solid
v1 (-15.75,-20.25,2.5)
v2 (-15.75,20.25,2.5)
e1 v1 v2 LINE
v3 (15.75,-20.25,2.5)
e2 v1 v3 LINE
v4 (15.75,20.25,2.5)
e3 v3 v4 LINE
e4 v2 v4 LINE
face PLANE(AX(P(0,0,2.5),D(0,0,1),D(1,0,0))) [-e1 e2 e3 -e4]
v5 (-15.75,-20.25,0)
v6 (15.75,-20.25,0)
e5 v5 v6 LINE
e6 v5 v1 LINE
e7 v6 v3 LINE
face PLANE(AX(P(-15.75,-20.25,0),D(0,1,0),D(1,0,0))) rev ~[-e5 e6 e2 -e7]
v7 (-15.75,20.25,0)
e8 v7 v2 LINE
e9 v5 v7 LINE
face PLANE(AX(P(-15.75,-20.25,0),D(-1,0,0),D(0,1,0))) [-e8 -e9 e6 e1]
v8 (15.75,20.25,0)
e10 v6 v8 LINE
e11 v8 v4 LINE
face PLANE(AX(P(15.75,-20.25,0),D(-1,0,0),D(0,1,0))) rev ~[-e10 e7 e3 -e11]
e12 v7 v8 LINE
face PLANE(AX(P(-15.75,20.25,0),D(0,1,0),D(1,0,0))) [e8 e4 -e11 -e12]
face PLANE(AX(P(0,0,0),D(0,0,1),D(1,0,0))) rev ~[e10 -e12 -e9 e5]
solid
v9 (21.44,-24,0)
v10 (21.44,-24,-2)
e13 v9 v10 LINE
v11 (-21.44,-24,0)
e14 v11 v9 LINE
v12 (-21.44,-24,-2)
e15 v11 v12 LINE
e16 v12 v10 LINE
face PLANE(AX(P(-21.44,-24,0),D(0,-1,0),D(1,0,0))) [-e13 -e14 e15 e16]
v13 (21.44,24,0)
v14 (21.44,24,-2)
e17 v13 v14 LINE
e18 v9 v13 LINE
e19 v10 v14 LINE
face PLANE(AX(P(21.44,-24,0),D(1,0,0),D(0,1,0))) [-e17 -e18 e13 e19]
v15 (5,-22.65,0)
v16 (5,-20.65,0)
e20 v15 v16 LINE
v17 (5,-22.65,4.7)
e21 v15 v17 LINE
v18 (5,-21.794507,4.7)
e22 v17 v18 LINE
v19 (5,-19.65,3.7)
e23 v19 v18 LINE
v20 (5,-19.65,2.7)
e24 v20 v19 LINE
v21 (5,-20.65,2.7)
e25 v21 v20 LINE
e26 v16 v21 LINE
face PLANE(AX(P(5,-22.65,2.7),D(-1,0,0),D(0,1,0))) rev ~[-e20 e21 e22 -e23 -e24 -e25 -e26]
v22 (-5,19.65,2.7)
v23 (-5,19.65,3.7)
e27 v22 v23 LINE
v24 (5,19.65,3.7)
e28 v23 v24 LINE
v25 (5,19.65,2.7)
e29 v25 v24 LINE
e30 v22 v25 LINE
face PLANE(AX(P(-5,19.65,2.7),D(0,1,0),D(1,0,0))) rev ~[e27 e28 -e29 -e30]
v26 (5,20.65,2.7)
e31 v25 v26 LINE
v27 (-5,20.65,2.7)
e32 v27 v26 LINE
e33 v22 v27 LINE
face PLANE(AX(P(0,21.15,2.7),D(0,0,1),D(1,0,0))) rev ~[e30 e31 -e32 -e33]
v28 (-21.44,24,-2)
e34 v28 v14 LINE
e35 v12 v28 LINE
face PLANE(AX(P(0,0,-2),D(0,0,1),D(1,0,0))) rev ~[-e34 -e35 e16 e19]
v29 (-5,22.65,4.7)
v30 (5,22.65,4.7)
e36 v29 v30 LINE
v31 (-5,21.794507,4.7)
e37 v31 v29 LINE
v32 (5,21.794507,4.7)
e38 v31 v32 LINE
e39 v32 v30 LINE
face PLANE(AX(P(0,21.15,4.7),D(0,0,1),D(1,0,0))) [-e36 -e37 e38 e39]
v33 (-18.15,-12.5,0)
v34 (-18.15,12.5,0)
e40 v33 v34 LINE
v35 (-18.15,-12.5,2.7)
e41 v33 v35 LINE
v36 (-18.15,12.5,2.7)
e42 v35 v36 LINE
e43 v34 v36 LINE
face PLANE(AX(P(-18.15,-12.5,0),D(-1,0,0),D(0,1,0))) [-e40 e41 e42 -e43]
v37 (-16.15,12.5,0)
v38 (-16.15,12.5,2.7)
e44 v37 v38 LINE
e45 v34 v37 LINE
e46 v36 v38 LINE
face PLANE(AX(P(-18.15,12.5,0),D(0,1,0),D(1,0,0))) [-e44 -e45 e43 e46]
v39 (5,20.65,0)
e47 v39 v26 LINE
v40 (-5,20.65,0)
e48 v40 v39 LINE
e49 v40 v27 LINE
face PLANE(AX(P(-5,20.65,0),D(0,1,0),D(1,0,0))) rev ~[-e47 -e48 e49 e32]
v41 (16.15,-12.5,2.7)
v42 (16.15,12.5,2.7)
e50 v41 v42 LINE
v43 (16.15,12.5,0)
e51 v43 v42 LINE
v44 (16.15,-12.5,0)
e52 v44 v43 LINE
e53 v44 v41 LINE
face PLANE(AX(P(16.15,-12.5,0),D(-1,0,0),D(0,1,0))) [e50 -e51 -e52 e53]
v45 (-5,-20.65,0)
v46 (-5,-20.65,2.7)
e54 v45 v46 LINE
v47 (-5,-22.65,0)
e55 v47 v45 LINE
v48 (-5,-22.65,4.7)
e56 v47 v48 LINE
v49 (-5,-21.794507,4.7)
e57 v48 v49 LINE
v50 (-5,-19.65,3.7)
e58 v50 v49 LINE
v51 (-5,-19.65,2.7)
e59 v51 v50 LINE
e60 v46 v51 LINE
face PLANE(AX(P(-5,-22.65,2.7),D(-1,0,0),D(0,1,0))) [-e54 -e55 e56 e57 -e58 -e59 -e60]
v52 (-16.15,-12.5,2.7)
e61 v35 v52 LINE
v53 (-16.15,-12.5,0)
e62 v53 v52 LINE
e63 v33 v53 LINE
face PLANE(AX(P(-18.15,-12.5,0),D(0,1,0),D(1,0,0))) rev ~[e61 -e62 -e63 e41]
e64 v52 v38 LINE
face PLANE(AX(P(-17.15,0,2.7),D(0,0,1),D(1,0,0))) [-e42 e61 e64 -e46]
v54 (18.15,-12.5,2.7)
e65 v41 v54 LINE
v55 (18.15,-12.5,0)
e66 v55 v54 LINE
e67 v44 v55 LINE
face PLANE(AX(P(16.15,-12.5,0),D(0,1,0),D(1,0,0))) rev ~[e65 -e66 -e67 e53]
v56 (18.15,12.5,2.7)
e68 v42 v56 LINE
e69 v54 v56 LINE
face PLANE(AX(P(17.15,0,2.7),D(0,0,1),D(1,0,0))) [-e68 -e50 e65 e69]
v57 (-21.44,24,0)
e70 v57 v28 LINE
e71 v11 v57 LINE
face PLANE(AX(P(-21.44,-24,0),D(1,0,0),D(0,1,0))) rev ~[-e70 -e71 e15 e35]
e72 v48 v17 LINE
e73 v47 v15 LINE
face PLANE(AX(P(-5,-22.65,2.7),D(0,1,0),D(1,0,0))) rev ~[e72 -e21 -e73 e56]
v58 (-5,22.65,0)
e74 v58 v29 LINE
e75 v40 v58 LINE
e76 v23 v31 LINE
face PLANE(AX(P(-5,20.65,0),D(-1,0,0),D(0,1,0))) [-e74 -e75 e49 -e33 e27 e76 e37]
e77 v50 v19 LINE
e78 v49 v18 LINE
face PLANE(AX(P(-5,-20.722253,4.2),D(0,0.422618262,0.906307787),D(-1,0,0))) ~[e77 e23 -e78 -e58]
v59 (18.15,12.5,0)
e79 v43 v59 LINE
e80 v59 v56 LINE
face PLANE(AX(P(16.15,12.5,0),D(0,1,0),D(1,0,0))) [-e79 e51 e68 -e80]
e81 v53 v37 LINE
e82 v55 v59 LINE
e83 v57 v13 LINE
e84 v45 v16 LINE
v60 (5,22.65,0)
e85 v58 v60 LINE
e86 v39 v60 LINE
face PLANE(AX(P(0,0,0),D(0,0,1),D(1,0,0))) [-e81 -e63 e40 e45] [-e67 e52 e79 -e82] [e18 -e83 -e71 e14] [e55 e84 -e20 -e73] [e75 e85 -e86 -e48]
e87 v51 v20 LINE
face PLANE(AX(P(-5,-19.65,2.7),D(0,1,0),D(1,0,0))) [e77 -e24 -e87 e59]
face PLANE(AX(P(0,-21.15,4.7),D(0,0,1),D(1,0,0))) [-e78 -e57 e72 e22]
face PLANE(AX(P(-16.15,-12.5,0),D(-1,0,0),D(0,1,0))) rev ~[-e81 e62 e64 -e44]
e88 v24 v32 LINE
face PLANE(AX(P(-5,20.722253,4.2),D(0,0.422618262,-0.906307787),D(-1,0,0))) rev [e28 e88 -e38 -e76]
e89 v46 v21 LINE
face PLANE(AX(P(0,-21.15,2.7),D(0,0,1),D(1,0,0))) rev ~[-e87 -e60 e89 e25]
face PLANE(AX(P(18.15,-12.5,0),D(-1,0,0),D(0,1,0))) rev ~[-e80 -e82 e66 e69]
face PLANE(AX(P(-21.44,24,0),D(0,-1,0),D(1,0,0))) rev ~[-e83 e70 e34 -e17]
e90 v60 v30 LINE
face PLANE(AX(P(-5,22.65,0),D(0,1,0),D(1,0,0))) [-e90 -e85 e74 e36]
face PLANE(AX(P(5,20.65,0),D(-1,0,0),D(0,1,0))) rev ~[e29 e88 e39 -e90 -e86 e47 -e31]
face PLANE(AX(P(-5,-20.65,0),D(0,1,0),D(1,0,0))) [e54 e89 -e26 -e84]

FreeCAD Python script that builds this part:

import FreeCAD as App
import Part
import Sketcher
from FreeCAD import Vector
Q = App.Units.Quantity


def edges_at(feature, points):
    """Names of the edges that pass closest to the given points."""
    edges = feature.Shape.Edges
    near = lambda p: min(range(len(edges)), key=lambda i: edges[i].distToShape(Part.Vertex(*p))[0])
    return sorted({f"Edge{near(p) + 1}" for p in points})

doc = App.newDocument("Part")
params = doc.addObject("Spreadsheet::Sheet", "Params")
for row, (alias, value) in enumerate([
    ("sketch1_width", "31.5 mm"),
    ("sketch1_height", "40.5 mm"),
    ("pad1_length", "2.5 mm"),
    ("sketch2_width", "2 mm"),
    ("sketch2_height", "25 mm"),
    ("pad2_length", "2.7 mm"),
    ("sketch3_width", "10 mm"),
    ("sketch3_height", "2 mm"),
    ("pad3_length", "2.7 mm"),
    ("sketch4_width", "2 mm"),
    ("sketch4_height", "25 mm"),
    ("pad4_length", "2.7 mm"),
    ("sketch5_width", "10 mm"),
    ("sketch5_height", "2 mm"),
    ("pad5_length", "2.7 mm"),
    ("sketch6_height", "48 mm"),
    ("sketch6_width", "42.88 mm"),
    ("pad6_length", "2 mm"),
    ("sketch7_width", "10 mm"),
    ("sketch7_height", "3 mm"),
    ("pad7_length", "2 mm"),
    ("chamfer_size", "1 mm"),
    ("chamfer_size2", "2.144507 mm"),
    ("chamfer2_size", "1 mm"),
    ("chamfer2_size2", "2.144507 mm"),
], start=1):
    params.set(f"A{row}", alias)
    params.set(f"B{row}", "=" + value)
    params.setAlias(f"B{row}", alias)

body = doc.addObject("PartDesign::Body", "Body")

# Sketch on XY plane
sketch1 = body.newObject("Sketcher::SketchObject", "Sketch")
sketch1.AttachmentSupport = (doc.getObject("XY_Plane"), [""])
sketch1.MapMode = "FlatFace"
sketch1.addGeometry([
    Part.LineSegment(Vector(-16, 20, 0), Vector(-16, -20, 0)),
    Part.LineSegment(Vector(-16, -20, 0), Vector(16, -20, 0)),
    Part.LineSegment(Vector(16, -20, 0), Vector(16, 20, 0)),
    Part.LineSegment(Vector(16, 20, 0), Vector(-16, 20, 0)),
], False)
sketch1.addConstraint([
    Sketcher.Constraint("Coincident", 0, 2, 1, 1),
    Sketcher.Constraint("Coincident", 1, 2, 2, 1),
    Sketcher.Constraint("Coincident", 2, 2, 3, 1),
    Sketcher.Constraint("Coincident", 3, 2, 0, 1),
    Sketcher.Constraint("Vertical", 0),
    Sketcher.Constraint("Horizontal", 1),
    Sketcher.Constraint("Vertical", 2),
    Sketcher.Constraint("Horizontal", 3),
    Sketcher.Constraint("Symmetric", 0, 2, 2, 2, -1, 1),
    Sketcher.Constraint("DistanceX", 1, 1, 1, 2, Q("31.5 mm")),
    Sketcher.Constraint("DistanceY", 0, 2, 0, 1, Q("40.5 mm")),
])
sketch1.setExpression("Constraints[9]", "Params.sketch1_width")
sketch1.setExpression("Constraints[10]", "Params.sketch1_height")
pad1 = body.newObject("PartDesign::Pad", "Pad")
pad1.Profile = sketch1
pad1.setExpression("Length", "Params.pad1_length")
body2 = doc.addObject("PartDesign::Body", "Body001")

# Sketch on XY plane
sketch2 = body2.newObject("Sketcher::SketchObject", "Sketch001")
sketch2.AttachmentSupport = (doc.getObject("XY_Plane001"), [""])
sketch2.MapMode = "FlatFace"
sketch2.addGeometry([
    Part.LineSegment(Vector(16.1, 12.5, 0), Vector(16.1, -12.5, 0)),
    Part.LineSegment(Vector(16.1, -12.5, 0), Vector(18.1, -12.5, 0)),
    Part.LineSegment(Vector(18.1, -12.5, 0), Vector(18.1, 12.5, 0)),
    Part.LineSegment(Vector(18.1, 12.5, 0), Vector(16.1, 12.5, 0)),
], False)
sketch2.addConstraint([
    Sketcher.Constraint("Coincident", 0, 2, 1, 1),
    Sketcher.Constraint("Coincident", 1, 2, 2, 1),
    Sketcher.Constraint("Coincident", 2, 2, 3, 1),
    Sketcher.Constraint("Coincident", 3, 2, 0, 1),
    Sketcher.Constraint("Vertical", 0),
    Sketcher.Constraint("Horizontal", 1),
    Sketcher.Constraint("Vertical", 2),
    Sketcher.Constraint("Horizontal", 3),
    Sketcher.Constraint("DistanceX", 1, 1, 1, 2, Q("2 mm")),
    Sketcher.Constraint("DistanceY", 0, 2, 0, 1, Q("25 mm")),
    Sketcher.Constraint("DistanceY", 0, 2, -1, 1, Q("12.5 mm")),
    Sketcher.Constraint("DistanceX", -1, 1, 0, 2, Q("16.15 mm")),
])
sketch2.setExpression("Constraints[8]", "Params.sketch2_width")
sketch2.setExpression("Constraints[9]", "Params.sketch2_height")
pad2 = body2.newObject("PartDesign::Pad", "Pad001")
pad2.Profile = sketch2
pad2.setExpression("Length", "Params.pad2_length")
body3 = doc.addObject("PartDesign::Body", "Body002")

# Sketch on XY plane
sketch3 = body3.newObject("Sketcher::SketchObject", "Sketch002")
sketch3.AttachmentSupport = (doc.getObject("XY_Plane002"), [""])
sketch3.MapMode = "FlatFace"
sketch3.addGeometry([
    Part.LineSegment(Vector(-5, -20.6, 0), Vector(-5, -22.6, 0)),
    Part.LineSegment(Vector(-5, -22.6, 0), Vector(5, -22.6, 0)),
    Part.LineSegment(Vector(5, -22.6, 0), Vector(5, -20.6, 0)),
    Part.LineSegment(Vector(5, -20.6, 0), Vector(-5, -20.6, 0)),
], False)
sketch3.addConstraint([
    Sketcher.Constraint("Coincident", 0, 2, 1, 1),
    Sketcher.Constraint("Coincident", 1, 2, 2, 1),
    Sketcher.Constraint("Coincident", 2, 2, 3, 1),
    Sketcher.Constraint("Coincident", 3, 2, 0, 1),
    Sketcher.Constraint("Vertical", 0),
    Sketcher.Constraint("Horizontal", 1),
    Sketcher.Constraint("Vertical", 2),
    Sketcher.Constraint("Horizontal", 3),
    Sketcher.Constraint("DistanceX", 1, 1, 1, 2, Q("10 mm")),
    Sketcher.Constraint("DistanceY", 0, 2, 0, 1, Q("2 mm")),
    Sketcher.Constraint("DistanceX", 0, 2, -1, 1, Q("5 mm")),
    Sketcher.Constraint("DistanceY", 0, 2, -1, 1, Q("22.65 mm")),
])
sketch3.setExpression("Constraints[8]", "Params.sketch3_width")
sketch3.setExpression("Constraints[9]", "Params.sketch3_height")
pad3 = body3.newObject("PartDesign::Pad", "Pad002")
pad3.Profile = sketch3
pad3.setExpression("Length", "Params.pad3_length")
body4 = doc.addObject("PartDesign::Body", "Body003")

# Sketch on XY plane
sketch4 = body4.newObject("Sketcher::SketchObject", "Sketch003")
sketch4.AttachmentSupport = (doc.getObject("XY_Plane003"), [""])
sketch4.MapMode = "FlatFace"
sketch4.addGeometry([
    Part.LineSegment(Vector(-18.1, 12.5, 0), Vector(-18.1, -12.5, 0)),
    Part.LineSegment(Vector(-18.1, -12.5, 0), Vector(-16.1, -12.5, 0)),
    Part.LineSegment(Vector(-16.1, -12.5, 0), Vector(-16.1, 12.5, 0)),
    Part.LineSegment(Vector(-16.1, 12.5, 0), Vector(-18.1, 12.5, 0)),
], False)
sketch4.addConstraint([
    Sketcher.Constraint("Coincident", 0, 2, 1, 1),
    Sketcher.Constraint("Coincident", 1, 2, 2, 1),
    Sketcher.Constraint("Coincident", 2, 2, 3, 1),
    Sketcher.Constraint("Coincident", 3, 2, 0, 1),
    Sketcher.Constraint("Vertical", 0),
    Sketcher.Constraint("Horizontal", 1),
    Sketcher.Constraint("Vertical", 2),
    Sketcher.Constraint("Horizontal", 3),
    Sketcher.Constraint("DistanceX", 1, 1, 1, 2, Q("2 mm")),
    Sketcher.Constraint("DistanceY", 0, 2, 0, 1, Q("25 mm")),
    Sketcher.Constraint("DistanceY", 0, 2, -1, 1, Q("12.5 mm")),
    Sketcher.Constraint("DistanceX", 0, 2, -1, 1, Q("18.15 mm")),
])
sketch4.setExpression("Constraints[8]", "Params.sketch4_width")
sketch4.setExpression("Constraints[9]", "Params.sketch4_height")
pad4 = body4.newObject("PartDesign::Pad", "Pad003")
pad4.Profile = sketch4
pad4.setExpression("Length", "Params.pad4_length")
body5 = doc.addObject("PartDesign::Body", "Body004")

# Sketch on XY plane
sketch5 = body5.newObject("Sketcher::SketchObject", "Sketch004")
sketch5.AttachmentSupport = (doc.getObject("XY_Plane004"), [""])
sketch5.MapMode = "FlatFace"
sketch5.addGeometry([
    Part.LineSegment(Vector(-5, 22.6, 0), Vector(-5, 20.6, 0)),
    Part.LineSegment(Vector(-5, 20.6, 0), Vector(5, 20.6, 0)),
    Part.LineSegment(Vector(5, 20.6, 0), Vector(5, 22.6, 0)),
    Part.LineSegment(Vector(5, 22.6, 0), Vector(-5, 22.6, 0)),
], False)
sketch5.addConstraint([
    Sketcher.Constraint("Coincident", 0, 2, 1, 1),
    Sketcher.Constraint("Coincident", 1, 2, 2, 1),
    Sketcher.Constraint("Coincident", 2, 2, 3, 1),
    Sketcher.Constraint("Coincident", 3, 2, 0, 1),
    Sketcher.Constraint("Vertical", 0),
    Sketcher.Constraint("Horizontal", 1),
    Sketcher.Constraint("Vertical", 2),
    Sketcher.Constraint("Horizontal", 3),
    Sketcher.Constraint("DistanceX", 1, 1, 1, 2, Q("10 mm")),
    Sketcher.Constraint("DistanceY", 0, 2, 0, 1, Q("2 mm")),
    Sketcher.Constraint("DistanceX", 0, 2, -1, 1, Q("5 mm")),
    Sketcher.Constraint("DistanceY", -1, 1, 0, 2, Q("20.65 mm")),
])
sketch5.setExpression("Constraints[8]", "Params.sketch5_width")
sketch5.setExpression("Constraints[9]", "Params.sketch5_height")
pad5 = body5.newObject("PartDesign::Pad", "Pad004")
pad5.Profile = sketch5
pad5.setExpression("Length", "Params.pad5_length")
body2.AllowCompound = True
doc.recompute()

boolean = body2.newObject("PartDesign::Boolean", "Boolean")
boolean.Type = "Fuse"
boolean.addObjects([body3])
doc.recompute()

boolean2 = body2.newObject("PartDesign::Boolean", "Boolean001")
boolean2.Type = "Fuse"
boolean2.addObjects([body4])
doc.recompute()

boolean3 = body2.newObject("PartDesign::Boolean", "Boolean002")
boolean3.Type = "Fuse"
boolean3.addObjects([body5])

# Sketch on XY plane
sketch6 = body2.newObject("Sketcher::SketchObject", "Sketch005")
sketch6.AttachmentSupport = (doc.getObject("XY_Plane001"), [""])
sketch6.MapMode = "FlatFace"
sketch6.addGeometry([
    Part.LineSegment(Vector(-21, 24, 0), Vector(-21, -24, 0)),
    Part.LineSegment(Vector(-21, -24, 0), Vector(21, -24, 0)),
    Part.LineSegment(Vector(21, -24, 0), Vector(21, 24, 0)),
    Part.LineSegment(Vector(21, 24, 0), Vector(-21, 24, 0)),
], False)
sketch6.addConstraint([
    Sketcher.Constraint("Coincident", 0, 2, 1, 1),
    Sketcher.Constraint("Coincident", 1, 2, 2, 1),
    Sketcher.Constraint("Coincident", 2, 2, 3, 1),
    Sketcher.Constraint("Coincident", 3, 2, 0, 1),
    Sketcher.Constraint("Vertical", 0),
    Sketcher.Constraint("Horizontal", 1),
    Sketcher.Constraint("Vertical", 2),
    Sketcher.Constraint("Horizontal", 3),
    Sketcher.Constraint("Symmetric", 0, 2, 2, 2, -1, 1),
    Sketcher.Constraint("DistanceY", 0, 2, 0, 1, Q("48 mm")),
    Sketcher.Constraint("DistanceX", 1, 1, 1, 2, Q("42.88 mm")),
])
sketch6.setExpression("Constraints[9]", "Params.sketch6_height")
sketch6.setExpression("Constraints[10]", "Params.sketch6_width")
pad6 = body2.newObject("PartDesign::Pad", "Pad005")
pad6.Profile = sketch6
pad6.setExpression("Length", "Params.pad6_length")
pad6.Reversed = True

# Sketch on XY plane
sketch7 = body2.newObject("Sketcher::SketchObject", "Sketch006")
sketch7.AttachmentSupport = (doc.getObject("XY_Plane001"), [""])
sketch7.MapMode = "FlatFace"
sketch7.AttachmentOffset = App.Placement(Vector(0, 0, 2.7), App.Rotation())
sketch7.addGeometry([
    Part.LineSegment(Vector(-5, -19.6, 0), Vector(-5, -22.6, 0)),  # 0
    Part.LineSegment(Vector(-5, -22.6, 0), Vector(5, -22.6, 0)),  # 1
    Part.LineSegment(Vector(5, -22.6, 0), Vector(5, -19.6, 0)),  # 2
    Part.LineSegment(Vector(5, -19.6, 0), Vector(-5, -19.6, 0)),  # 3
    Part.LineSegment(Vector(-5, 22.6, 0), Vector(-5, 19.6, 0)),  # 4
    Part.LineSegment(Vector(-5, 19.6, 0), Vector(5, 19.6, 0)),  # 5
    Part.LineSegment(Vector(5, 19.6, 0), Vector(5, 22.6, 0)),  # 6
    Part.LineSegment(Vector(5, 22.6, 0), Vector(-5, 22.6, 0)),  # 7
], False)
sketch7.addConstraint([
    Sketcher.Constraint("Coincident", 0, 2, 1, 1),
    Sketcher.Constraint("Coincident", 1, 2, 2, 1),
    Sketcher.Constraint("Coincident", 2, 2, 3, 1),
    Sketcher.Constraint("Coincident", 3, 2, 0, 1),
    Sketcher.Constraint("Coincident", 4, 2, 5, 1),
    Sketcher.Constraint("Coincident", 5, 2, 6, 1),
    Sketcher.Constraint("Coincident", 6, 2, 7, 1),
    Sketcher.Constraint("Coincident", 7, 2, 4, 1),
    Sketcher.Constraint("Vertical", 0),
    Sketcher.Constraint("Horizontal", 1),
    Sketcher.Constraint("Vertical", 2),
    Sketcher.Constraint("Horizontal", 3),
    Sketcher.Constraint("Vertical", 4),
    Sketcher.Constraint("Horizontal", 5),
    Sketcher.Constraint("Vertical", 6),
    Sketcher.Constraint("Horizontal", 7),
    Sketcher.Constraint("Symmetric", 2, 2, 4, 2, -1, 1),
    Sketcher.Constraint("Symmetric", 0, 2, 6, 2, -1, 1),
    Sketcher.Constraint("Vertical", 3, 2, 4, 2),
    Sketcher.Constraint("DistanceX", 1, 1, 1, 2, Q("10 mm")),
    Sketcher.Constraint("DistanceY", 0, 2, 0, 1, Q("3 mm")),
    Sketcher.Constraint("DistanceY", 3, 2, 4, 2, Q("39.3 mm")),
])
sketch7.setExpression("Constraints[19]", "Params.sketch7_width")
sketch7.setExpression("Constraints[20]", "Params.sketch7_height")
pad7 = body2.newObject("PartDesign::Pad", "Pad006")
pad7.Profile = sketch7
pad7.setExpression("Length", "Params.pad7_length")
doc.recompute()

chamfer = body2.newObject("PartDesign::Chamfer", "Chamfer")
chamfer.Base = (pad7, edges_at(pad7, [(0, 19.65, 4.7)]))
chamfer.ChamferType = "Two distances"
chamfer.setExpression("Size", "Params.chamfer_size")
chamfer.setExpression("Size2", "Params.chamfer_size2")
doc.recompute()

chamfer2 = body2.newObject("PartDesign::Chamfer", "Chamfer001")
chamfer2.Base = (chamfer, edges_at(chamfer, [(0, -19.65, 4.7)]))
chamfer2.ChamferType = "Two distances"
chamfer2.setExpression("Size", "Params.chamfer2_size")
chamfer2.setExpression("Size2", "Params.chamfer2_size2")
chamfer2.FlipDirection = True

doc.recompute()
